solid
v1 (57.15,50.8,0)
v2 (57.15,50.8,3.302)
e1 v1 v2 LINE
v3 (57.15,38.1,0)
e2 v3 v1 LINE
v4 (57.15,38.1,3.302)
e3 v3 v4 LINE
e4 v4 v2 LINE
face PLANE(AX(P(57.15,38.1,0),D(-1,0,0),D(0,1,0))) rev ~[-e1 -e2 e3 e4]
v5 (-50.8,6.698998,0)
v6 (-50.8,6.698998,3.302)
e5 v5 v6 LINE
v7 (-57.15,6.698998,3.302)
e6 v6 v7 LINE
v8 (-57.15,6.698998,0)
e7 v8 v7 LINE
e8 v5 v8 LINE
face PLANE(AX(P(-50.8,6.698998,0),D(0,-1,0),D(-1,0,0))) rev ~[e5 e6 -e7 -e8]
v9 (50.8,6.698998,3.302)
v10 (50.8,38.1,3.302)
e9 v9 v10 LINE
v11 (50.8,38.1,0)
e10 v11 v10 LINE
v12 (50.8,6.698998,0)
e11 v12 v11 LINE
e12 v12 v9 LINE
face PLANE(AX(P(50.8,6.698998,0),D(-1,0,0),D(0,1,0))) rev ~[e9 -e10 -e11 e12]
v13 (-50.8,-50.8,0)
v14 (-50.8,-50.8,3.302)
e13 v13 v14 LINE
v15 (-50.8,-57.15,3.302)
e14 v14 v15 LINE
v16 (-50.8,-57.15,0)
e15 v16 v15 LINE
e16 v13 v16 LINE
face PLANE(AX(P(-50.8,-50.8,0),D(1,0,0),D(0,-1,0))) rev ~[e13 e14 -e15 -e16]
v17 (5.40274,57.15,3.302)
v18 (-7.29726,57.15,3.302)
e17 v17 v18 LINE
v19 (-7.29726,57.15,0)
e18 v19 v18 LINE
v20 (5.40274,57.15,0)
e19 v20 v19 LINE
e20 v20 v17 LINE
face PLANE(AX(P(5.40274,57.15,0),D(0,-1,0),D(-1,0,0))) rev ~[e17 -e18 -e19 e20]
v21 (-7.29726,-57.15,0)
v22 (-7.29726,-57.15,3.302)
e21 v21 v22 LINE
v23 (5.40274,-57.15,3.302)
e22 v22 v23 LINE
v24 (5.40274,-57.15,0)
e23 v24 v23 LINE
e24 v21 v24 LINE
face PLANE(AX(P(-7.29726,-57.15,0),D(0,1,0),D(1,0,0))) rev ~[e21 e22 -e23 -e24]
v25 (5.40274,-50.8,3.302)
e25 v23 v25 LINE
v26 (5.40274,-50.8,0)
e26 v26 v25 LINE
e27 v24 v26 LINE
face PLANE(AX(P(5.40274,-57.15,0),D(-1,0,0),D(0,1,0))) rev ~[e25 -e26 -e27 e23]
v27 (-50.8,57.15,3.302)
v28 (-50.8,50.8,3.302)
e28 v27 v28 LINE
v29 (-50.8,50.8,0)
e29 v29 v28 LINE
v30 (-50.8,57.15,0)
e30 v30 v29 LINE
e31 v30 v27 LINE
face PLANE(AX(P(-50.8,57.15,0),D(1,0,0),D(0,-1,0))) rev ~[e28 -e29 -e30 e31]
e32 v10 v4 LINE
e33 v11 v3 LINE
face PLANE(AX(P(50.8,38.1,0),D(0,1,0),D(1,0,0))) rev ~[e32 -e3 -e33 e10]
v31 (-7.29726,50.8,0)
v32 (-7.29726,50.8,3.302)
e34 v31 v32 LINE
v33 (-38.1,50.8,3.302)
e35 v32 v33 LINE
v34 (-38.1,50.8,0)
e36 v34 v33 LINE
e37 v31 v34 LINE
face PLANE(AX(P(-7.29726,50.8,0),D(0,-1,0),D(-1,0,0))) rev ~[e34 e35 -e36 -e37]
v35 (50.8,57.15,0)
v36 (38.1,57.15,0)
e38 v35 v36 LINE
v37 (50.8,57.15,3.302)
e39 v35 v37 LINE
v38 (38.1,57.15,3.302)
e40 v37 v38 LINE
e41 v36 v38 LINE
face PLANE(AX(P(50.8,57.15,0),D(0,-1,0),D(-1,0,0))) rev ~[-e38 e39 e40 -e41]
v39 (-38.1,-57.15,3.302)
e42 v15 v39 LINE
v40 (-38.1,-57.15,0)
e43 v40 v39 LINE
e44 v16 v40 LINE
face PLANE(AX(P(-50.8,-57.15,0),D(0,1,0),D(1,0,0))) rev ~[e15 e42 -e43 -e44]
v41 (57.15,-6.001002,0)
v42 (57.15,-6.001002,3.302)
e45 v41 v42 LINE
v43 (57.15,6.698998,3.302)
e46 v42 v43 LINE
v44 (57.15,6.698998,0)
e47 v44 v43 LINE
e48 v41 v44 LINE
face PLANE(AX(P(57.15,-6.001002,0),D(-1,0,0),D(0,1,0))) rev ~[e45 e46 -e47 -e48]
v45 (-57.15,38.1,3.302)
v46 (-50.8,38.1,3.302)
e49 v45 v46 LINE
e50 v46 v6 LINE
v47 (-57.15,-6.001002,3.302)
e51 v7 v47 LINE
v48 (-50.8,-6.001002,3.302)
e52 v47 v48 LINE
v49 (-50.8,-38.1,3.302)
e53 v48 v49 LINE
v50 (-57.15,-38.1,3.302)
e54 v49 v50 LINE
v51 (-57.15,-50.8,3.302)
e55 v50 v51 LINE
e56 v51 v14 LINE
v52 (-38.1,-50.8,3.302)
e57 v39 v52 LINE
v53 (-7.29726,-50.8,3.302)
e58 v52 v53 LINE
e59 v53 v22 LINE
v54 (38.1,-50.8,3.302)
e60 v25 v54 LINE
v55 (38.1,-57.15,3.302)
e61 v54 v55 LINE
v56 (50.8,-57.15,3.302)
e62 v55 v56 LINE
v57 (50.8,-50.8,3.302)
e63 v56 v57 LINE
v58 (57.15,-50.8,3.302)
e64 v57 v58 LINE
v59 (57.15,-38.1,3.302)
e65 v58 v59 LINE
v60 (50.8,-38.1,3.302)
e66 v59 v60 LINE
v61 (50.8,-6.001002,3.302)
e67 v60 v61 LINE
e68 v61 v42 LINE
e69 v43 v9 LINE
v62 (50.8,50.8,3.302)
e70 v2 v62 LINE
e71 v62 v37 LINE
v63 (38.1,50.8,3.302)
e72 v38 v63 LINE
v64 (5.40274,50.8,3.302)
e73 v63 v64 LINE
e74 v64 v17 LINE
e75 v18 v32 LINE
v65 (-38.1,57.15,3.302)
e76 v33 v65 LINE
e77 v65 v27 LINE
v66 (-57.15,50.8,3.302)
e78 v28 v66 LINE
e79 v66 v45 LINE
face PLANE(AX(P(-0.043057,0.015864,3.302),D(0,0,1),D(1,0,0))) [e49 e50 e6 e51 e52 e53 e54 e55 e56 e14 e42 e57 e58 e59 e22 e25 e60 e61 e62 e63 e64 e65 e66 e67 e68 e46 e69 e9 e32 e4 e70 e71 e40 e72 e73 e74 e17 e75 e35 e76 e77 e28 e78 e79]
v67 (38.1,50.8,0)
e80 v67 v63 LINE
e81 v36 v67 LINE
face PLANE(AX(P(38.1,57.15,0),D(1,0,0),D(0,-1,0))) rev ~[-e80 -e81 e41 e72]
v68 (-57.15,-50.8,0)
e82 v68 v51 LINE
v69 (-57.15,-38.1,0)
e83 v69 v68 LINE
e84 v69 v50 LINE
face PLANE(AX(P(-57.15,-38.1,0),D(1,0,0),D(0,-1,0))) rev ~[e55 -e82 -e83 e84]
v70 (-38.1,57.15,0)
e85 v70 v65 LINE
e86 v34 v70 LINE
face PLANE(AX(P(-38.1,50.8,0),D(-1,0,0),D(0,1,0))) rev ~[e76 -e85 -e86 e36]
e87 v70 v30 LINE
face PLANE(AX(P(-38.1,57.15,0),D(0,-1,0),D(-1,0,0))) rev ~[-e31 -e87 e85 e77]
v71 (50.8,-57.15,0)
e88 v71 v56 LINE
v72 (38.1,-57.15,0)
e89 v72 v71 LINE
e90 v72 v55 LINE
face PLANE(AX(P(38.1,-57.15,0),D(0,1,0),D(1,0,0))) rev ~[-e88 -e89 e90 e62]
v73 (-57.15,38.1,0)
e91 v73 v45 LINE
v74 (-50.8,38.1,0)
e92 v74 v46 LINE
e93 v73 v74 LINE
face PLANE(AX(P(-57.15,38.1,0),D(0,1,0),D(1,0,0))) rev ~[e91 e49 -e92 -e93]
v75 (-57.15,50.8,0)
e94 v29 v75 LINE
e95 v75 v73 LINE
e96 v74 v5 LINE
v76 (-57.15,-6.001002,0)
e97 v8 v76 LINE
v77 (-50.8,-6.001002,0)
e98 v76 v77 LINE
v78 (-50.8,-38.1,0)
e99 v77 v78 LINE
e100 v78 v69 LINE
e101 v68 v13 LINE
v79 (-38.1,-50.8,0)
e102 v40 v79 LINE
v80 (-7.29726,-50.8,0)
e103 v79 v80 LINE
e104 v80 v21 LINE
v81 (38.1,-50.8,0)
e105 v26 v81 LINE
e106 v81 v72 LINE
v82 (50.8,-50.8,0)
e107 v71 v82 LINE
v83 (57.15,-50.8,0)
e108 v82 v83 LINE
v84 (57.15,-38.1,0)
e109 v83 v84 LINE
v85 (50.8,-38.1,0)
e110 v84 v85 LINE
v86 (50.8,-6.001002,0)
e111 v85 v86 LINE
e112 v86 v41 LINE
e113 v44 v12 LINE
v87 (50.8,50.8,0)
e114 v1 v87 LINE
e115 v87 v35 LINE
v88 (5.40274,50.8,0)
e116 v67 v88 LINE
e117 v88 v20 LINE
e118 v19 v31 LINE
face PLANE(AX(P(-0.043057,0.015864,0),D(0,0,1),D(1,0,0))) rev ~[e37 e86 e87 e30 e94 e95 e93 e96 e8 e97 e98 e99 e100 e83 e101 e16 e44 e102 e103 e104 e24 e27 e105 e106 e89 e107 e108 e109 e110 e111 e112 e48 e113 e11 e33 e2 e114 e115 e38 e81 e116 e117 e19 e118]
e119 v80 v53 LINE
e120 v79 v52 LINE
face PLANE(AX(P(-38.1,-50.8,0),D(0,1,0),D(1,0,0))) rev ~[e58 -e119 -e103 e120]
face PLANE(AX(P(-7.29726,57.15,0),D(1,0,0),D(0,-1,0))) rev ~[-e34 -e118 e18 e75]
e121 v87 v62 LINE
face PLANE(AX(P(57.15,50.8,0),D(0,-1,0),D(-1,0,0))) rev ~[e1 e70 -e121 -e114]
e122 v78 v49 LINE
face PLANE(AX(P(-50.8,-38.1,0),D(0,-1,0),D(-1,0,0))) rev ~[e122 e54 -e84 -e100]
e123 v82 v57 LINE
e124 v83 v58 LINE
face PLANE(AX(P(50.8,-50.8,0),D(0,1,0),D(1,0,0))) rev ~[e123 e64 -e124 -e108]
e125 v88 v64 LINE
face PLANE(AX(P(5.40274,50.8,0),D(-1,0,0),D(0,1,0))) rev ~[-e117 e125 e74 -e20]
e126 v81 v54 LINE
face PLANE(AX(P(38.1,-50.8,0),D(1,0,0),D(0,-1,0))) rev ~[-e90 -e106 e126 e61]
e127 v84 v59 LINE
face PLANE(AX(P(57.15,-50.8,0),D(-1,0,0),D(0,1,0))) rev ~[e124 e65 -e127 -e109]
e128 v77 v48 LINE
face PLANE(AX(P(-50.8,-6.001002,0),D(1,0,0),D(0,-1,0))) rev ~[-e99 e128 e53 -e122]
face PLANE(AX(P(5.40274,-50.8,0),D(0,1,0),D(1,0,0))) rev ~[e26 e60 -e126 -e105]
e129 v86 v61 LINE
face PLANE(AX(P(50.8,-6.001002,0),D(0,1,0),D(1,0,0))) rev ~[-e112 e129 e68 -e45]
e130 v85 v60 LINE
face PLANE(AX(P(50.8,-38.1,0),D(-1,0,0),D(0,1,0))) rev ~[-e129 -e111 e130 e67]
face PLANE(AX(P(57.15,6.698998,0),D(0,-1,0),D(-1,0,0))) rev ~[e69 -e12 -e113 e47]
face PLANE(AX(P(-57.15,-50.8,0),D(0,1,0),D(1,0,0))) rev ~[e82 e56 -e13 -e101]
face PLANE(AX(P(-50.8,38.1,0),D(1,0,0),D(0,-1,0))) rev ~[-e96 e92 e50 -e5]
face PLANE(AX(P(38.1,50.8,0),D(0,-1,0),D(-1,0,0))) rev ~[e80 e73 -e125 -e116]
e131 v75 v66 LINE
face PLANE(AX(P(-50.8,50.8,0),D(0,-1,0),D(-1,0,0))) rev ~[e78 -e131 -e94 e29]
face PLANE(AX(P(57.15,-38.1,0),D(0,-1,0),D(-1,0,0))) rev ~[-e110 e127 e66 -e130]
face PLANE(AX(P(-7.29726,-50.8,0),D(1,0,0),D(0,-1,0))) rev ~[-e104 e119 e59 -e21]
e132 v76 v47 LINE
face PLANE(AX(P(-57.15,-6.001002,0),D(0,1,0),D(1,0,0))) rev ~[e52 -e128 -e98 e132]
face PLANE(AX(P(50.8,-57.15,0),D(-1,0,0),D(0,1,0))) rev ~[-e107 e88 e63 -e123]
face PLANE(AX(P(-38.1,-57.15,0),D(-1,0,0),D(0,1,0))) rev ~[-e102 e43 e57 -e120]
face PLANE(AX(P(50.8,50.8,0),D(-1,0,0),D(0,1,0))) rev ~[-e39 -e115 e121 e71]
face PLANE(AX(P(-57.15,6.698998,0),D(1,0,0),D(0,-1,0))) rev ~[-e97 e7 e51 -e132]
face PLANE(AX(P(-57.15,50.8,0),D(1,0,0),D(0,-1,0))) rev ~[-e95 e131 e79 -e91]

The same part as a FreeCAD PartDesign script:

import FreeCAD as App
import Part
import Sketcher
from FreeCAD import Vector
Q = App.Units.Quantity


def add_polygon(sketch, points):
    """Adds a closed chain of lines whose ends are joined by coincident constraints."""
    first, n = sketch.GeometryCount, len(points)
    for a, b in zip(points, points[1:] + points[:1]):
        sketch.addGeometry(Part.LineSegment(App.Vector(*a, 0), App.Vector(*b, 0)), False)
    for i in range(n):
        sketch.addConstraint(Sketcher.Constraint("Coincident", first + i, 2, first + (i + 1) % n, 1))

doc = App.newDocument("Part")
body = doc.addObject("PartDesign::Body", "Body")

# Sketch on XY plane
sketch1 = body.newObject("Sketcher::SketchObject", "Sketch")
sketch1.AttachmentSupport = (doc.getObject("XY_Plane"), [""])
sketch1.MapMode = "FlatFace"
add_polygon(sketch1, [(-7.29726, 50.8), (-38.1, 50.8), (-38.1, 57.15), (-50.8, 57.15), (-50.8, 50.8), (-57.15, 50.8), (-57.15, 38.1), (-50.8, 38.1), (-50.8, 6.698998), (-57.15, 6.698998), (-57.15, -6.001002), (-50.8, -6.001002), (-50.8, -38.1), (-57.15, -38.1), (-57.15, -50.8), (-50.8, -50.8), (-50.8, -57.15), (-38.1, -57.15), (-38.1, -50.8), (-7.29726, -50.8), (-7.29726, -57.15), (5.40274, -57.15), (5.40274, -50.8), (38.1, -50.8), (38.1, -57.15), (50.8, -57.15), (50.8, -50.8), (57.15, -50.8), (57.15, -38.1), (50.8, -38.1), (50.8, -6.001002), (57.15, -6.001002), (57.15, 6.698998), (50.8, 6.698998), (50.8, 38.1), (57.15, 38.1), (57.15, 50.8), (50.8, 50.8), (50.8, 57.15), (38.1, 57.15), (38.1, 50.8), (5.40274, 50.8), (5.40274, 57.15), (-7.29726, 57.15)])  # lines 0-43
sketch1.addConstraint([
    Sketcher.Constraint("Horizontal", 0),
    Sketcher.Constraint("Vertical", 1),
    Sketcher.Constraint("Horizontal", 2),
    Sketcher.Constraint("Vertical", 3),
    Sketcher.Constraint("Horizontal", 4),
    Sketcher.Constraint("Vertical", 5),
    Sketcher.Constraint("Horizontal", 6),
    Sketcher.Constraint("Vertical", 7),
    Sketcher.Constraint("Horizontal", 8),
    Sketcher.Constraint("Vertical", 9),
    Sketcher.Constraint("Horizontal", 10),
    Sketcher.Constraint("Vertical", 11),
    Sketcher.Constraint("Horizontal", 12),
    Sketcher.Constraint("Vertical", 13),
    Sketcher.Constraint("Horizontal", 14),
    Sketcher.Constraint("Vertical", 15),
    Sketcher.Constraint("Horizontal", 16),
    Sketcher.Constraint("Vertical", 17),
    Sketcher.Constraint("Horizontal", 18),
    Sketcher.Constraint("Vertical", 19),
    Sketcher.Constraint("Horizontal", 20),
    Sketcher.Constraint("Vertical", 21),
    Sketcher.Constraint("Horizontal", 22),
    Sketcher.Constraint("Vertical", 23),
    Sketcher.Constraint("Horizontal", 24),
    Sketcher.Constraint("Vertical", 25),
    Sketcher.Constraint("Horizontal", 26),
    Sketcher.Constraint("Vertical", 27),
    Sketcher.Constraint("Horizontal", 28),
    Sketcher.Constraint("Vertical", 29),
    Sketcher.Constraint("Horizontal", 30),
    Sketcher.Constraint("Vertical", 31),
    Sketcher.Constraint("Horizontal", 32),
    Sketcher.Constraint("Vertical", 33),
    Sketcher.Constraint("Horizontal", 34),
    Sketcher.Constraint("Vertical", 35),
    Sketcher.Constraint("Horizontal", 36),
    Sketcher.Constraint("Vertical", 37),
    Sketcher.Constraint("Horizontal", 38),
    Sketcher.Constraint("Vertical", 39),
    Sketcher.Constraint("Horizontal", 40),
    Sketcher.Constraint("Vertical", 41),
    Sketcher.Constraint("Horizontal", 42),
    Sketcher.Constraint("Vertical", 43),
    Sketcher.Constraint("Symmetric", 0, 2, 22, 2, -1, 1),
    Sketcher.Constraint("Symmetric", 2, 2, 24, 2, -1, 1),
    Sketcher.Constraint("Symmetric", 4, 2, 26, 2, -1, 1),
    Sketcher.Constraint("Symmetric", 6, 2, 28, 2, -1, 1),
    Sketcher.Constraint("Symmetric", 11, 2, 33, 2, -1, 1),
    Sketcher.Constraint("Symmetric", 13, 2, 35, 2, -1, 1),
    Sketcher.Constraint("Symmetric", 15, 2, 37, 2, -1, 1),
    Sketcher.Constraint("Symmetric", 17, 2, 39, 2, -1, 1),
    Sketcher.Constraint("Symmetric", 17, 2, 22, 2, -2),
    Sketcher.Constraint("Symmetric", 15, 2, 24, 2, -2),
    Sketcher.Constraint("Symmetric", 13, 2, 26, 2, -2),
    Sketcher.Constraint("Symmetric", 11, 2, 28, 2, -2),
    Sketcher.Constraint("Symmetric", 9, 2, 30, 2, -2),
    Sketcher.Constraint("Symmetric", 20, 2, 41, 2, -1),
    Sketcher.Constraint("Horizontal", 0, 2, 3, 2),
    Sketcher.Constraint("Horizontal", 16, 2, 19, 2),
    Sketcher.Constraint("Horizontal", 8, 2, 31, 2),
    Sketcher.Constraint("Vertical", 3, 2, 6, 2),
    Sketcher.Constraint("Vertical", 5, 2, 8, 2),
    Sketcher.Constraint("Vertical", 19, 2, 42, 2),
    Sketcher.Constraint("Equal", 16, 20),
    Sketcher.Constraint("Equal", 36, 1),
    Sketcher.Constraint("Equal", 42, 5),
    Sketcher.Constraint("Equal", 5, 9),
    Sketcher.Constraint("DistanceX", 2, 2, 2, 1, Q("0.5 in")),
    Sketcher.Constraint("DistanceY", -1, 1, 0, 2, Q("2 in")),
    Sketcher.Constraint("DistanceX", 2, 2, -1, 1, Q("2 in")),
    Sketcher.Constraint("DistanceX", 4, 2, 4, 1, Q("0.25 in")),
    Sketcher.Constraint("DistanceY", 11, 2, 11, 1, 32.098998),
    Sketcher.Constraint("DistanceX", 0, 2, 0, 1, 30.80274),
])
pad1 = body.newObject("PartDesign::Pad", "Pad")
pad1.Profile = sketch1
pad1.Length = Q("0.13 in")

doc.recompute()
